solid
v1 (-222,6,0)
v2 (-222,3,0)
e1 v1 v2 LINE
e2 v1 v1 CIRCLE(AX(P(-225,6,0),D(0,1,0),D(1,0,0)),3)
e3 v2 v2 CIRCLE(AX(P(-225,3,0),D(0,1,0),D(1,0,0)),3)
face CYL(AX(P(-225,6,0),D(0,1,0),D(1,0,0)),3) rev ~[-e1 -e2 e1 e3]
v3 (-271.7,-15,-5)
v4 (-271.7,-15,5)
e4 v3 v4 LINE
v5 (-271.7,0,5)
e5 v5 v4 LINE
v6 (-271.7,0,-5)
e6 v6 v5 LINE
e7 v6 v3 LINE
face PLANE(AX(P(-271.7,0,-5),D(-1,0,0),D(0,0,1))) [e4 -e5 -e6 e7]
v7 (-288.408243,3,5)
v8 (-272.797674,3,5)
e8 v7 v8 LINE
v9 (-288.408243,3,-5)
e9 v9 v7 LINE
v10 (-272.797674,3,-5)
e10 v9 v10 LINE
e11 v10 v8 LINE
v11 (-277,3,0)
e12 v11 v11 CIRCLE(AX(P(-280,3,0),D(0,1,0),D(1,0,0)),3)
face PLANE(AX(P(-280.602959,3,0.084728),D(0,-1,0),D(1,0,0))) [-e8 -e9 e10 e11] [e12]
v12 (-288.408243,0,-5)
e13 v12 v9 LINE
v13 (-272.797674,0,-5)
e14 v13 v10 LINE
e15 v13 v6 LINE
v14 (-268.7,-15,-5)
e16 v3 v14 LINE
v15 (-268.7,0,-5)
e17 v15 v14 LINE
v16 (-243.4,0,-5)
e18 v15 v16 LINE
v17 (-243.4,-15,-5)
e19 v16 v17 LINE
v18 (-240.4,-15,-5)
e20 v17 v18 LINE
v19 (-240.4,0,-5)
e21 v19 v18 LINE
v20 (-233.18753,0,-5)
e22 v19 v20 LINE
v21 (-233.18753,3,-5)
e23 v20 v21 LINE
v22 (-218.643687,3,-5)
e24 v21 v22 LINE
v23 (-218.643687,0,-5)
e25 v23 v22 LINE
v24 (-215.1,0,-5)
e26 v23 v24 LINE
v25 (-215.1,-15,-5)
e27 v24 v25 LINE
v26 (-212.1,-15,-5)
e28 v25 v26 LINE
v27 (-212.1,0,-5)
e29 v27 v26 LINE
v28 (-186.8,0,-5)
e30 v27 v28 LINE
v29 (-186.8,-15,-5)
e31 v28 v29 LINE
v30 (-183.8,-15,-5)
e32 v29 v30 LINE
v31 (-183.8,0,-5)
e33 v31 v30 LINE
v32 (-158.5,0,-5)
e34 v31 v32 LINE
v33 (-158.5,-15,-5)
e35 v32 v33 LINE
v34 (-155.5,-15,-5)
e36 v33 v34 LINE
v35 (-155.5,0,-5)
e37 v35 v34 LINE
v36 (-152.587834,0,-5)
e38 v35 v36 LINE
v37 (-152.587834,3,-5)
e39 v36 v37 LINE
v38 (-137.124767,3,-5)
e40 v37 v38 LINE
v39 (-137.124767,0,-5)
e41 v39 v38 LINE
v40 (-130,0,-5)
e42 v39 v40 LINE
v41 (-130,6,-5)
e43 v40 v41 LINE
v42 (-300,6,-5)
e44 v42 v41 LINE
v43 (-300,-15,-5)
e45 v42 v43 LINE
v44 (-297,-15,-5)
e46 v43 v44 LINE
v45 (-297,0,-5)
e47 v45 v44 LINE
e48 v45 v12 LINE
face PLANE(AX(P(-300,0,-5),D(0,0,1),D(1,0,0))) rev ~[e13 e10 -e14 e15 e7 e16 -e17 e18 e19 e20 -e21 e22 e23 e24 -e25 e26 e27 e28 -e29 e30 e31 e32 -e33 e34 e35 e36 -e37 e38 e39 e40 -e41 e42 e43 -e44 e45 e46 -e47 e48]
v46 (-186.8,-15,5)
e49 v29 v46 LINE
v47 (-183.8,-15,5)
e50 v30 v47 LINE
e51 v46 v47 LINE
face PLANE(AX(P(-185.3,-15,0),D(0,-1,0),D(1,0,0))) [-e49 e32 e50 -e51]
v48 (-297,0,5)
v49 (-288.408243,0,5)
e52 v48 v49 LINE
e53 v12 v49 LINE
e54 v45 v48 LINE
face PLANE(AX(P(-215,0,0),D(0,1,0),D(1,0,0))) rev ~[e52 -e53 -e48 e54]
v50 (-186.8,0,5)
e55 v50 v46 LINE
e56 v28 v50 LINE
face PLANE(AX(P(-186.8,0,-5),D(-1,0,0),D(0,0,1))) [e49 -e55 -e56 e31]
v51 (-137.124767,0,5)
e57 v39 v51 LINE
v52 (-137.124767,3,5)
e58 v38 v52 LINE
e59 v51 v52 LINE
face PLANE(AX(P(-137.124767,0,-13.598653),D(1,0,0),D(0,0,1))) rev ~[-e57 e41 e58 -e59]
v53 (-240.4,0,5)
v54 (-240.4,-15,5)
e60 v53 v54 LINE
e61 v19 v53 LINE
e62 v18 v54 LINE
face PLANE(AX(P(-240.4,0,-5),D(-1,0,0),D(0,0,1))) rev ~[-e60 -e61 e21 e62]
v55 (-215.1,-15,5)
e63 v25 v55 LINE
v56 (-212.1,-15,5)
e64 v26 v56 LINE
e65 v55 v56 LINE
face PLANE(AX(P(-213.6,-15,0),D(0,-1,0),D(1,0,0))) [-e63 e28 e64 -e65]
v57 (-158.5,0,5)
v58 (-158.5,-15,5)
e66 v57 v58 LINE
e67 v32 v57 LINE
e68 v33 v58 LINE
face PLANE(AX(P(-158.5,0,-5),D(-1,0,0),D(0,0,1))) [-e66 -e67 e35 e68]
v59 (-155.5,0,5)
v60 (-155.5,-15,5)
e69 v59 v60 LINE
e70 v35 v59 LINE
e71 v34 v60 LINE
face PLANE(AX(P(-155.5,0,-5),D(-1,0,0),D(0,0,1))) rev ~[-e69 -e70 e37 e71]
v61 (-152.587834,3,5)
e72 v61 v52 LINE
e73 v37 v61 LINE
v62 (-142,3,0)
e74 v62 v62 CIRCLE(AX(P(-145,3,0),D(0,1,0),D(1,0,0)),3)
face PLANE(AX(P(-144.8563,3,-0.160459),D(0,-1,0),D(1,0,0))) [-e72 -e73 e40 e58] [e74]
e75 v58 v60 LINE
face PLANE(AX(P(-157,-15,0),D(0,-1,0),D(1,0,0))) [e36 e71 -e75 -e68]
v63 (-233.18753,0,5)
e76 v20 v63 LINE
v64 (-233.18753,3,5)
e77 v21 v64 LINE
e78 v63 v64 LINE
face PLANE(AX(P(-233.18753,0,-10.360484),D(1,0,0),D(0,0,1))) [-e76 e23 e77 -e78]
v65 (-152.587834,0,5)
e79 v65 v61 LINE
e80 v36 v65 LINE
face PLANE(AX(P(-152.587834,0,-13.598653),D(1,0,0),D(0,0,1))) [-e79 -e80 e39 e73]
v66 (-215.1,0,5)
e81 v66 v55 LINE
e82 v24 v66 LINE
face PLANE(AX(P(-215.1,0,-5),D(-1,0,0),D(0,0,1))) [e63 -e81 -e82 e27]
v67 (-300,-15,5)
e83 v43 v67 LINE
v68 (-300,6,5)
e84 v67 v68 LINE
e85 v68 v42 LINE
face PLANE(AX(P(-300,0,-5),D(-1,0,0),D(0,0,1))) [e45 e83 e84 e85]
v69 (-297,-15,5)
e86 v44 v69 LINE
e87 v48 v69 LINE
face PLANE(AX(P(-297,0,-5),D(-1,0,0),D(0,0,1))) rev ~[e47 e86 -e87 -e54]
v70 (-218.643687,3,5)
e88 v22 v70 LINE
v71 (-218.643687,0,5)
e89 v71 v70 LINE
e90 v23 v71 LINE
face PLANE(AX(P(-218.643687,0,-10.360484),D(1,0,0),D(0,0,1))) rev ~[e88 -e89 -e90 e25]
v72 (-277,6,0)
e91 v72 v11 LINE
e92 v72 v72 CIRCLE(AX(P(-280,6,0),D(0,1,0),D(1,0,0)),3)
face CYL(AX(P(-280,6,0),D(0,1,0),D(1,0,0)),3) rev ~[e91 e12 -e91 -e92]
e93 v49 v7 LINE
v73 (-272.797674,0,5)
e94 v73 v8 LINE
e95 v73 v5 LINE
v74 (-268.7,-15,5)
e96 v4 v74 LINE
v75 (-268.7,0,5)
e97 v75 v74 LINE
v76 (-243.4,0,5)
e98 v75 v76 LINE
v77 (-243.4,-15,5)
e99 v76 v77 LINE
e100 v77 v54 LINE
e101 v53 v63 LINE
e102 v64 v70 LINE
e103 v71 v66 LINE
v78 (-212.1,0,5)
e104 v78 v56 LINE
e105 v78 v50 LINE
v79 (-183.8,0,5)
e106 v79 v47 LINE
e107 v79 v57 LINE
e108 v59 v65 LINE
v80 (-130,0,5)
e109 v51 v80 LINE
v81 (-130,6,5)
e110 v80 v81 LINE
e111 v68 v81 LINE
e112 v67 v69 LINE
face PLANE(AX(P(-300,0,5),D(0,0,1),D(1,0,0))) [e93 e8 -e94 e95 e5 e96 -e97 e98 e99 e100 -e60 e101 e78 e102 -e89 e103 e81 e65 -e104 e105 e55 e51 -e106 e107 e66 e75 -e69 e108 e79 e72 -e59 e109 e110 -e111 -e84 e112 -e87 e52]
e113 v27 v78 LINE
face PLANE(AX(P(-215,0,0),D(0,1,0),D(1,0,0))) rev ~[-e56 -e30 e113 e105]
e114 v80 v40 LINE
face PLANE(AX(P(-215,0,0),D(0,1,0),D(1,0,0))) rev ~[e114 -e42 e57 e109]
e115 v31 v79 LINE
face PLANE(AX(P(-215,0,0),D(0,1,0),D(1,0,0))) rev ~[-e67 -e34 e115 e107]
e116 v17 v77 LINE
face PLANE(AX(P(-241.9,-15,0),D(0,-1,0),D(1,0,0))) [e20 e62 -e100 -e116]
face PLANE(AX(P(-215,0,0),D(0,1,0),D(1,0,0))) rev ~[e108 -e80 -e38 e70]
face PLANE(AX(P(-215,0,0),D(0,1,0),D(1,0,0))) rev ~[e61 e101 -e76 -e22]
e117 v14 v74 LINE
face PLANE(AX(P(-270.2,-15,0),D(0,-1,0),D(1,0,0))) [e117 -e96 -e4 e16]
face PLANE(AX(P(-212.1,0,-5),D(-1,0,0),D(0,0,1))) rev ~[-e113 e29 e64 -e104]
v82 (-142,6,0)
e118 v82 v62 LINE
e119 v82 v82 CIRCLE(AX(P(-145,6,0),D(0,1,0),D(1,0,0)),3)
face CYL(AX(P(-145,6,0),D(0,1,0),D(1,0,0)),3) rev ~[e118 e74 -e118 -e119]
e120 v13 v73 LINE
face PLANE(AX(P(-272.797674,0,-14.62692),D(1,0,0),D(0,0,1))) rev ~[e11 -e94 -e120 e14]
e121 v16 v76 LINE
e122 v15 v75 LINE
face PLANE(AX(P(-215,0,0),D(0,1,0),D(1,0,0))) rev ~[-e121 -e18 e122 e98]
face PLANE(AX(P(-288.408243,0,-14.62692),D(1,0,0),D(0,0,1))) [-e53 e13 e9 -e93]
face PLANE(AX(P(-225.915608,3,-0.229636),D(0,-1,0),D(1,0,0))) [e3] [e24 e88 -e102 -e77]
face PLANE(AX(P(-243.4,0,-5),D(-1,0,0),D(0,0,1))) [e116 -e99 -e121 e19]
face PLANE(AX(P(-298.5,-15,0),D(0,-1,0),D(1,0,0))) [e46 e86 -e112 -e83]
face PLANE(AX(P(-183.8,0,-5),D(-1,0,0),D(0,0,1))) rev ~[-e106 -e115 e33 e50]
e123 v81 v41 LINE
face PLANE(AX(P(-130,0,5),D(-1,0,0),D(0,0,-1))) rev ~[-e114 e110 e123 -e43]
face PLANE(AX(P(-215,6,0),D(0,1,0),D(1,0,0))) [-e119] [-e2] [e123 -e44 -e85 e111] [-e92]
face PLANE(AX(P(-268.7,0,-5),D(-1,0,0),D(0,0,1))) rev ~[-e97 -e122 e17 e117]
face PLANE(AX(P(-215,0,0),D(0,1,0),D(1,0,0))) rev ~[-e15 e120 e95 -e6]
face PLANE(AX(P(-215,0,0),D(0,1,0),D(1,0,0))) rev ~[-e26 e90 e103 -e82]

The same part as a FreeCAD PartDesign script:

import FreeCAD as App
import Part
import Sketcher
from FreeCAD import Vector
Q = App.Units.Quantity

doc = App.newDocument("Part")
params = doc.addObject("Spreadsheet::Sheet", "Params")
for row, (alias, value) in enumerate([
    ("sketch1_width", "170 mm"),
    ("sketch1_height", "10 mm"),
    ("pad1_length", "6 mm"),
    ("sketch2_width", "3 mm"),
    ("sketch2_height", "10 mm"),
    ("pad2_length", "15 mm"),
    ("linearpattern_pitch", "28.3 mm"),
    ("sketch3_diameter", "6 mm"),
    ("sketch3_diameter2", "3.6 mm"),
    ("pocket1_length", "10 mm"),
    ("pocket2_length", "3 mm"),
], start=1):
    params.set(f"A{row}", alias)
    params.set(f"B{row}", "=" + value)
    params.setAlias(f"B{row}", alias)

body = doc.addObject("PartDesign::Body", "Body")

# Sketch on XZ plane
sketch1 = body.newObject("Sketcher::SketchObject", "Sketch")
sketch1.AttachmentSupport = (doc.getObject("XZ_Plane"), [""])
sketch1.MapMode = "FlatFace"
sketch1.addGeometry([
    Part.LineSegment(Vector(-300, -5, 0), Vector(-300, 5, 0)),
    Part.LineSegment(Vector(-300, 5, 0), Vector(-130, 5, 0)),
    Part.LineSegment(Vector(-130, 5, 0), Vector(-130, -5, 0)),
    Part.LineSegment(Vector(-130, -5, 0), Vector(-300, -5, 0)),
], False)
sketch1.addConstraint([
    Sketcher.Constraint("Coincident", 0, 2, 1, 1),
    Sketcher.Constraint("Coincident", 1, 2, 2, 1),
    Sketcher.Constraint("Coincident", 2, 2, 3, 1),
    Sketcher.Constraint("Coincident", 3, 2, 0, 1),
    Sketcher.Constraint("Vertical", 0),
    Sketcher.Constraint("Horizontal", 1),
    Sketcher.Constraint("Vertical", 2),
    Sketcher.Constraint("Horizontal", 3),
    Sketcher.Constraint("DistanceX", 1, 1, 1, 2, Q("170 mm")),
    Sketcher.Constraint("DistanceY", 0, 1, 0, 2, Q("10 mm")),
    Sketcher.Constraint("DistanceX", 0, 2, -1, 1, Q("300 mm")),
    Sketcher.Constraint("DistanceY", -1, 1, 0, 2, Q("5 mm")),
])
sketch1.setExpression("Constraints[8]", "Params.sketch1_width")
sketch1.setExpression("Constraints[9]", "Params.sketch1_height")
pad1 = body.newObject("PartDesign::Pad", "Pad")
pad1.Profile = sketch1
pad1.setExpression("Length", "Params.pad1_length")
pad1.Reversed = True

# Sketch on XZ plane
sketch2 = body.newObject("Sketcher::SketchObject", "Sketch001")
sketch2.AttachmentSupport = (doc.getObject("XZ_Plane"), [""])
sketch2.MapMode = "FlatFace"
sketch2.addGeometry([
    Part.LineSegment(Vector(-300, 5, 0), Vector(-300, -5, 0)),
    Part.LineSegment(Vector(-300, -5, 0), Vector(-297, -5, 0)),
    Part.LineSegment(Vector(-297, -5, 0), Vector(-297, 5, 0)),
    Part.LineSegment(Vector(-297, 5, 0), Vector(-300, 5, 0)),
], False)
sketch2.addConstraint([
    Sketcher.Constraint("Coincident", 0, 2, 1, 1),
    Sketcher.Constraint("Coincident", 1, 2, 2, 1),
    Sketcher.Constraint("Coincident", 2, 2, 3, 1),
    Sketcher.Constraint("Coincident", 3, 2, 0, 1),
    Sketcher.Constraint("Vertical", 0),
    Sketcher.Constraint("Horizontal", 1),
    Sketcher.Constraint("Vertical", 2),
    Sketcher.Constraint("Horizontal", 3),
    Sketcher.Constraint("DistanceX", 1, 1, 1, 2, Q("3 mm")),
    Sketcher.Constraint("DistanceY", 0, 2, 0, 1, Q("10 mm")),
    Sketcher.Constraint("DistanceX", 0, 2, -1, 1, Q("300 mm")),
    Sketcher.Constraint("DistanceY", 0, 2, -1, 1, Q("5 mm")),
])
sketch2.setExpression("Constraints[8]", "Params.sketch2_width")
sketch2.setExpression("Constraints[9]", "Params.sketch2_height")
pad2 = body.newObject("PartDesign::Pad", "Pad001")
pad2.Profile = sketch2
pad2.setExpression("Length", "Params.pad2_length")
doc.recompute()

linearpattern = body.newObject("PartDesign::LinearPattern", "LinearPattern")
linearpattern.Originals = [pad2]
linearpattern.Direction = (doc.getObject("X_Axis"), [""])
linearpattern.Mode = "offset"
linearpattern.setExpression("Offset", "Params.linearpattern_pitch")
linearpattern.Occurrences = 6
body.Tip = linearpattern

# Sketch on XZ plane
sketch3 = body.newObject("Sketcher::SketchObject", "Sketch002")
sketch3.AttachmentSupport = (doc.getObject("XZ_Plane"), [""])
sketch3.MapMode = "FlatFace"
sketch3.AttachmentOffset = App.Placement(Vector(0, 0, -6), App.Rotation())
sketch3.addGeometry([
    Part.Circle(Vector(-225, 0, 0), Vector(0, 0, 1), 3),  # 0
    Part.Circle(Vector(225, 0, 0), Vector(0, 0, 1), 1.8),  # 1
    Part.Circle(Vector(165, 0, 0), Vector(0, 0, 1), 1.8),  # 2
    Part.Circle(Vector(-280, 0, 0), Vector(0, 0, 1), 3),  # 3
    Part.Circle(Vector(-145, 0, 0), Vector(0, 0, 1), 3),  # 4
], False)
sketch3.addConstraint([
    Sketcher.Constraint("Equal", 1, 2),
    Sketcher.Constraint("Equal", 0, 3),
    Sketcher.Constraint("Equal", 3, 4),
    Sketcher.Constraint("Symmetric", 0, 3, 1, 3, -1, 1),
    Sketcher.Constraint("PointOnObject", 0, 3, -1),
    Sketcher.Constraint("PointOnObject", 2, 3, -1),
    Sketcher.Constraint("PointOnObject", 3, 3, -1),
    Sketcher.Constraint("PointOnObject", 4, 3, -1),
    Sketcher.Constraint("Diameter", 0, Q("6 mm")),
    Sketcher.Constraint("Diameter", 1, Q("3.6 mm")),
    Sketcher.Constraint("DistanceX", 0, 3, -1, 1, Q("225 mm")),
    Sketcher.Constraint("DistanceX", -1, 1, 2, 3, Q("165 mm")),
    Sketcher.Constraint("DistanceX", 3, 3, -1, 1, Q("280 mm")),
    Sketcher.Constraint("DistanceX", 4, 3, -1, 1, Q("145 mm")),
])
sketch3.setExpression("Constraints[8]", "Params.sketch3_diameter")
sketch3.setExpression("Constraints[9]", "Params.sketch3_diameter2")
pocket1 = body.newObject("PartDesign::Pocket", "Pocket")
pocket1.Profile = sketch3
pocket1.setExpression("Length", "Params.pocket1_length")
pocket1.Reversed = True

# Sketch on XZ plane
sketch4 = body.newObject("Sketcher::SketchObject", "Sketch003")
sketch4.AttachmentSupport = (doc.getObject("XZ_Plane"), [""])
sketch4.MapMode = "FlatFace"
sketch4.addGeometry([
    Part.LineSegment(Vector(-288, 15, 0), Vector(-288, -15, 0)),  # 0
    Part.LineSegment(Vector(-288, -15, 0), Vector(-273, -15, 0)),  # 1
    Part.LineSegment(Vector(-273, -15, 0), Vector(-273, 15, 0)),  # 2
    Part.LineSegment(Vector(-273, 15, 0), Vector(-288, 15, 0)),  # 3
    Part.LineSegment(Vector(-233, 10, 0), Vector(-233, -10, 0)),  # 4
    Part.LineSegment(Vector(-233, -10, 0), Vector(-219, -10, 0)),  # 5
    Part.LineSegment(Vector(-219, -10, 0), Vector(-219, 10, 0)),  # 6
    Part.LineSegment(Vector(-219, 10, 0), Vector(-233, 10, 0)),  # 7
    Part.LineSegment(Vector(-153, 13, 0), Vector(-153, -14, 0)),  # 8
    Part.LineSegment(Vector(-153, -14, 0), Vector(-137, -14, 0)),  # 9
    Part.LineSegment(Vector(-137, -14, 0), Vector(-137, 13, 0)),  # 10
    Part.LineSegment(Vector(-137, 13, 0), Vector(-153, 13, 0)),  # 11
], False)
sketch4.addConstraint([
    Sketcher.Constraint("Coincident", 0, 2, 1, 1),
    Sketcher.Constraint("Coincident", 1, 2, 2, 1),
    Sketcher.Constraint("Coincident", 2, 2, 3, 1),
    Sketcher.Constraint("Coincident", 3, 2, 0, 1),
    Sketcher.Constraint("Coincident", 4, 2, 5, 1),
    Sketcher.Constraint("Coincident", 5, 2, 6, 1),
    Sketcher.Constraint("Coincident", 6, 2, 7, 1),
    Sketcher.Constraint("Coincident", 7, 2, 4, 1),
    Sketcher.Constraint("Coincident", 8, 2, 9, 1),
    Sketcher.Constraint("Coincident", 9, 2, 10, 1),
    Sketcher.Constraint("Coincident", 10, 2, 11, 1),
    Sketcher.Constraint("Coincident", 11, 2, 8, 1),
    Sketcher.Constraint("Vertical", 0),
    Sketcher.Constraint("Horizontal", 1),
    Sketcher.Constraint("Vertical", 2),
    Sketcher.Constraint("Horizontal", 3),
    Sketcher.Constraint("Vertical", 4),
    Sketcher.Constraint("Horizontal", 5),
    Sketcher.Constraint("Vertical", 6),
    Sketcher.Constraint("Horizontal", 7),
    Sketcher.Constraint("Vertical", 8),
    Sketcher.Constraint("Horizontal", 9),
    Sketcher.Constraint("Vertical", 10),
    Sketcher.Constraint("Horizontal", 11),
    Sketcher.Constraint("DistanceX", 1, 1, 1, 2, Q("15.61057 mm")),
    Sketcher.Constraint("DistanceY", 8, 2, 8, 1, Q("26.876389 mm")),
    Sketcher.Constraint("DistanceX", 5, 1, 5, 2, Q("14.543843 mm")),
    Sketcher.Constraint("DistanceX", 9, 1, 9, 2, Q("15.463067 mm")),
    Sketcher.Constraint("DistanceY", 0, 2, 0, 1, Q("29.423296 mm")),
    Sketcher.Constraint("DistanceY", 4, 2, 4, 1, Q("20.261697 mm")),
    Sketcher.Constraint("DistanceY", 0, 2, -1, 1, Q("14.62692 mm")),
    Sketcher.Constraint("DistanceX", 4, 2, -1, 1, Q("233.18753 mm")),
    Sketcher.Constraint("DistanceY", 4, 2, 2, 2, Q("25.15686 mm")),
    Sketcher.Constraint("DistanceY", 8, 2, 5, 2, Q("3.238169 mm")),
    Sketcher.Constraint("DistanceX", 1, 2, 8, 2, Q("120.20984 mm")),
    Sketcher.Constraint("DistanceX", 5, 2, 9, 2, Q("81.51892 mm")),
])
pocket2 = body.newObject("PartDesign::Pocket", "Pocket001")
pocket2.Profile = sketch4
pocket2.setExpression("Length", "Params.pocket2_length")

doc.recompute()
